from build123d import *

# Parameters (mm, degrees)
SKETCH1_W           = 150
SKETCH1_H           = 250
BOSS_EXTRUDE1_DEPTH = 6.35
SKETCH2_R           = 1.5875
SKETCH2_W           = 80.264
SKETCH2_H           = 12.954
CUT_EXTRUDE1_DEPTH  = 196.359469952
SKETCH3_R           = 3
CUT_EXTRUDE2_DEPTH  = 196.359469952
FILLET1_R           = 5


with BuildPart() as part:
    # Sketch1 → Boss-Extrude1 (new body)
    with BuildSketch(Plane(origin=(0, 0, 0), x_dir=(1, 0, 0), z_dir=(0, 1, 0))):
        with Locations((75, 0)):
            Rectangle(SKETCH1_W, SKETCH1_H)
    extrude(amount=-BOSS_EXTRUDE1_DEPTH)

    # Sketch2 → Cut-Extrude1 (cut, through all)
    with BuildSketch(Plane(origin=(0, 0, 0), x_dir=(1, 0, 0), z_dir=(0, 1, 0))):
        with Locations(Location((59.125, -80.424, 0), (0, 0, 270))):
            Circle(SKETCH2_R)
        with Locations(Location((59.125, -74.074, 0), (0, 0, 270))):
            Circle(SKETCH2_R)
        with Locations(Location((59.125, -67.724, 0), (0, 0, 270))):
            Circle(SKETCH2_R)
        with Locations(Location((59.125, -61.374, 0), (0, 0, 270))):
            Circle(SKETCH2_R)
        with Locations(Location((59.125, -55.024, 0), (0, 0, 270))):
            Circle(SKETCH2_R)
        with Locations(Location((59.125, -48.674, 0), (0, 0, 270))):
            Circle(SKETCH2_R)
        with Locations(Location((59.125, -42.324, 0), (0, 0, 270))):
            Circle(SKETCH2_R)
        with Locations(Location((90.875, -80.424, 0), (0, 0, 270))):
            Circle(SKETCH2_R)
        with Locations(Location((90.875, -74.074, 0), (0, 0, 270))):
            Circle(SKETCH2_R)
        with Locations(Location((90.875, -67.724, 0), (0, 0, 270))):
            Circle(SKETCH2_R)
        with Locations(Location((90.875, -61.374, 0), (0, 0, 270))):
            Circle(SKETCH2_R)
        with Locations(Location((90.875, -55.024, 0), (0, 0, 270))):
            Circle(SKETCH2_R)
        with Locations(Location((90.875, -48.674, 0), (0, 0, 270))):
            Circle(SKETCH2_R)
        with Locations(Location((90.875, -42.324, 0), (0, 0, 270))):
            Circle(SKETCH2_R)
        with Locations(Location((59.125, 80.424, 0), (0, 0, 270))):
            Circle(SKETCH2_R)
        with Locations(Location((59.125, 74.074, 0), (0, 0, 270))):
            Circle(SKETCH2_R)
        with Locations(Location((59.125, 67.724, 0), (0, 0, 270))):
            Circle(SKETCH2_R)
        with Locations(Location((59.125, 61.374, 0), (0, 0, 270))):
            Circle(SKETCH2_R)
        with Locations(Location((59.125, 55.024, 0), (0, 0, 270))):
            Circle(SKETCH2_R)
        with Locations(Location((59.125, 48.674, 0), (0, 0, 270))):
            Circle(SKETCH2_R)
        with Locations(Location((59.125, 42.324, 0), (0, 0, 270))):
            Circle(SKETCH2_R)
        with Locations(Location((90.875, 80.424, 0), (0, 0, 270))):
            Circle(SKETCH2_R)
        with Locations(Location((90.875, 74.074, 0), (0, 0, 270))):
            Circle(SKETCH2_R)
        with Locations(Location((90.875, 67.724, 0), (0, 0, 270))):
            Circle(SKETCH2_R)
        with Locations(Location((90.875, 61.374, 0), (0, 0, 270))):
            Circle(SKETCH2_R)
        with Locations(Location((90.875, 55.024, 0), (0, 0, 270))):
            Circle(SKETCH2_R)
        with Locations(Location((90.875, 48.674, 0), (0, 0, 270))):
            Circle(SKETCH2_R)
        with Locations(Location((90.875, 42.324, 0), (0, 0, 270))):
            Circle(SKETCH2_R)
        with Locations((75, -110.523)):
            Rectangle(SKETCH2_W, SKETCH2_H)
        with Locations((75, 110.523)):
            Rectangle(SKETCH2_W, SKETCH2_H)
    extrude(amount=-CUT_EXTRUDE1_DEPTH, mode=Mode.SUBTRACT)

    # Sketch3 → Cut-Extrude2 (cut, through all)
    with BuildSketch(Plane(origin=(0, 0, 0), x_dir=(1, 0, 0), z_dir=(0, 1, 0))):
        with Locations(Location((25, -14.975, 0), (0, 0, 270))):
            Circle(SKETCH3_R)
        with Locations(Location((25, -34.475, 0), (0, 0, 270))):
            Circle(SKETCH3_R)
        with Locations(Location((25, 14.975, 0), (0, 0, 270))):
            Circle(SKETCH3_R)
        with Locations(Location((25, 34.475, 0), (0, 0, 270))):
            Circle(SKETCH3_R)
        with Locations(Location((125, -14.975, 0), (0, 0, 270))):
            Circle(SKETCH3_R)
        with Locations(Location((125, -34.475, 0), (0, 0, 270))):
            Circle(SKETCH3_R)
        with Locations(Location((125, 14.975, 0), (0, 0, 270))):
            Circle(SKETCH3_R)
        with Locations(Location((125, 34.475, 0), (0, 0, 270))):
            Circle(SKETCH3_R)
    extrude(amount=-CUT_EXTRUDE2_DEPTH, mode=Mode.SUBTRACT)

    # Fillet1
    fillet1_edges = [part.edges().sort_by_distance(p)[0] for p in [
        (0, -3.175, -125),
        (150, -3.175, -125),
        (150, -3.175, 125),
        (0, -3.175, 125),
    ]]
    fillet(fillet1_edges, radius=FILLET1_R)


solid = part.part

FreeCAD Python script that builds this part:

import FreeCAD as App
import Part
import Sketcher
from FreeCAD import Vector
Q = App.Units.Quantity


def edges_at(feature, points):
    """Names of the edges that pass closest to the given points."""
    edges = feature.Shape.Edges
    near = lambda p: min(range(len(edges)), key=lambda i: edges[i].distToShape(Part.Vertex(*p))[0])
    return sorted({f"Edge{near(p) + 1}" for p in points})


def add_polygon(sketch, points):
    """Adds a closed chain of lines whose ends are joined by coincident constraints."""
    first, n = sketch.GeometryCount, len(points)
    for a, b in zip(points, points[1:] + points[:1]):
        sketch.addGeometry(Part.LineSegment(App.Vector(*a, 0), App.Vector(*b, 0)), False)
    for i in range(n):
        sketch.addConstraint(Sketcher.Constraint("Coincident", first + i, 2, first + (i + 1) % n, 1))

doc = App.newDocument("Part")
body = doc.addObject("PartDesign::Body", "Body")

# Sketch on XZ plane
sketch1 = body.newObject("Sketcher::SketchObject", "Sketch")
sketch1.AttachmentSupport = (doc.getObject("XZ_Plane"), [""])
sketch1.MapMode = "FlatFace"
add_polygon(sketch1, [(0, -125), (0, 125), (150, 125), (150, -125)])  # lines 0-3
sketch1.addConstraint([
    Sketcher.Constraint("Vertical", 0),
    Sketcher.Constraint("Horizontal", 1),
    Sketcher.Constraint("Vertical", 2),
    Sketcher.Constraint("Horizontal", 3),
    Sketcher.Constraint("Symmetric", 0, 2, 3, 2, -1, 1),
    Sketcher.Constraint("DistanceX", 1, 1, 1, 2, Q("150 mm")),
    Sketcher.Constraint("DistanceY", 0, 1, 0, 2, Q("250 mm")),
])
pad1 = body.newObject("PartDesign::Pad", "Pad")
pad1.Profile = sketch1
pad1.Length = 6.35

# Sketch on XZ plane
sketch2 = body.newObject("Sketcher::SketchObject", "Sketch001")
sketch2.AttachmentSupport = (doc.getObject("XZ_Plane"), [""])
sketch2.MapMode = "FlatFace"
sketch2.addGeometry(Part.Circle(Vector(59.1, 80.4, 0), Vector(0, 0, 1), 1.6), False)  # 0
sketch2.addGeometry(Part.Circle(Vector(59.1, 74.1, 0), Vector(0, 0, 1), 1.6), False)  # 1
sketch2.addGeometry(Part.Circle(Vector(59.1, 67.7, 0), Vector(0, 0, 1), 1.6), False)  # 2
sketch2.addGeometry(Part.Circle(Vector(59.1, 61.4, 0), Vector(0, 0, 1), 1.6), False)  # 3
sketch2.addGeometry(Part.Circle(Vector(59.1, 55, 0), Vector(0, 0, 1), 1.6), False)  # 4
sketch2.addGeometry(Part.Circle(Vector(59.1, 48.7, 0), Vector(0, 0, 1), 1.6), False)  # 5
sketch2.addGeometry(Part.Circle(Vector(59.1, 42.3, 0), Vector(0, 0, 1), 1.6), False)  # 6
sketch2.addGeometry(Part.Circle(Vector(90.9, 80.4, 0), Vector(0, 0, 1), 1.6), False)  # 7
sketch2.addGeometry(Part.Circle(Vector(90.9, 74.1, 0), Vector(0, 0, 1), 1.6), False)  # 8
sketch2.addGeometry(Part.Circle(Vector(90.9, 67.7, 0), Vector(0, 0, 1), 1.6), False)  # 9
sketch2.addGeometry(Part.Circle(Vector(90.9, 61.4, 0), Vector(0, 0, 1), 1.6), False)  # 10
sketch2.addGeometry(Part.Circle(Vector(90.9, 55, 0), Vector(0, 0, 1), 1.6), False)  # 11
sketch2.addGeometry(Part.Circle(Vector(90.9, 48.7, 0), Vector(0, 0, 1), 1.6), False)  # 12
sketch2.addGeometry(Part.Circle(Vector(90.9, 42.3, 0), Vector(0, 0, 1), 1.6), False)  # 13
sketch2.addGeometry(Part.Circle(Vector(59.1, -80.4, 0), Vector(0, 0, 1), 1.6), False)  # 14
sketch2.addGeometry(Part.Circle(Vector(59.1, -74.1, 0), Vector(0, 0, 1), 1.6), False)  # 15
sketch2.addGeometry(Part.Circle(Vector(59.1, -67.7, 0), Vector(0, 0, 1), 1.6), False)  # 16
sketch2.addGeometry(Part.Circle(Vector(59.1, -61.4, 0), Vector(0, 0, 1), 1.6), False)  # 17
sketch2.addGeometry(Part.Circle(Vector(59.1, -55, 0), Vector(0, 0, 1), 1.6), False)  # 18
sketch2.addGeometry(Part.Circle(Vector(59.1, -48.7, 0), Vector(0, 0, 1), 1.6), False)  # 19
sketch2.addGeometry(Part.Circle(Vector(59.1, -42.3, 0), Vector(0, 0, 1), 1.6), False)  # 20
sketch2.addGeometry(Part.Circle(Vector(90.9, -80.4, 0), Vector(0, 0, 1), 1.6), False)  # 21
sketch2.addGeometry(Part.Circle(Vector(90.9, -74.1, 0), Vector(0, 0, 1), 1.6), False)  # 22
sketch2.addGeometry(Part.Circle(Vector(90.9, -67.7, 0), Vector(0, 0, 1), 1.6), False)  # 23
sketch2.addGeometry(Part.Circle(Vector(90.9, -61.4, 0), Vector(0, 0, 1), 1.6), False)  # 24
sketch2.addGeometry(Part.Circle(Vector(90.9, -55, 0), Vector(0, 0, 1), 1.6), False)  # 25
sketch2.addGeometry(Part.Circle(Vector(90.9, -48.7, 0), Vector(0, 0, 1), 1.6), False)  # 26
sketch2.addGeometry(Part.Circle(Vector(90.9, -42.3, 0), Vector(0, 0, 1), 1.6), False)  # 27
add_polygon(sketch2, [(34.9, 104), (34.9, 117), (115.1, 117), (115.1, 104)])  # lines 28-31
add_polygon(sketch2, [(34.9, -117), (34.9, -104), (115.1, -104), (115.1, -117)])  # lines 32-35
sketch2.addConstraint([
    Sketcher.Constraint("Vertical", 28),
    Sketcher.Constraint("Horizontal", 29),
    Sketcher.Constraint("Vertical", 30),
    Sketcher.Constraint("Horizontal", 31),
    Sketcher.Constraint("Vertical", 32),
    Sketcher.Constraint("Horizontal", 33),
    Sketcher.Constraint("Vertical", 34),
    Sketcher.Constraint("Horizontal", 35),
    Sketcher.Constraint("Equal", 0, 1),
    Sketcher.Constraint("Equal", 1, 2),
    Sketcher.Constraint("Equal", 2, 3),
    Sketcher.Constraint("Equal", 3, 4),
    Sketcher.Constraint("Equal", 4, 5),
    Sketcher.Constraint("Equal", 5, 6),
    Sketcher.Constraint("Equal", 6, 7),
    Sketcher.Constraint("Equal", 7, 8),
    Sketcher.Constraint("Equal", 8, 9),
    Sketcher.Constraint("Equal", 9, 10),
    Sketcher.Constraint("Equal", 10, 11),
    Sketcher.Constraint("Equal", 11, 12),
    Sketcher.Constraint("Equal", 12, 13),
    Sketcher.Constraint("Equal", 13, 14),
    Sketcher.Constraint("Equal", 14, 15),
    Sketcher.Constraint("Equal", 15, 16),
    Sketcher.Constraint("Equal", 16, 17),
    Sketcher.Constraint("Equal", 17, 18),
    Sketcher.Constraint("Equal", 18, 19),
    Sketcher.Constraint("Equal", 19, 20),
    Sketcher.Constraint("Equal", 20, 21),
    Sketcher.Constraint("Equal", 21, 22),
    Sketcher.Constraint("Equal", 22, 23),
    Sketcher.Constraint("Equal", 23, 24),
    Sketcher.Constraint("Equal", 24, 25),
    Sketcher.Constraint("Equal", 25, 26),
    Sketcher.Constraint("Equal", 26, 27),
    Sketcher.Constraint("Symmetric", 0, 3, 14, 3, -1),
    Sketcher.Constraint("Symmetric", 1, 3, 15, 3, -1),
    Sketcher.Constraint("Symmetric", 2, 3, 16, 3, -1),
    Sketcher.Constraint("Symmetric", 3, 3, 17, 3, -1),
    Sketcher.Constraint("Symmetric", 4, 3, 18, 3, -1),
    Sketcher.Constraint("Symmetric", 5, 3, 19, 3, -1),
    Sketcher.Constraint("Symmetric", 6, 3, 20, 3, -1),
    Sketcher.Constraint("Symmetric", 7, 3, 21, 3, -1),
    Sketcher.Constraint("Symmetric", 8, 3, 22, 3, -1),
    Sketcher.Constraint("Symmetric", 9, 3, 23, 3, -1),
    Sketcher.Constraint("Symmetric", 10, 3, 24, 3, -1),
    Sketcher.Constraint("Symmetric", 11, 3, 25, 3, -1),
    Sketcher.Constraint("Symmetric", 12, 3, 26, 3, -1),
    Sketcher.Constraint("Symmetric", 13, 3, 27, 3, -1),
    Sketcher.Constraint("Symmetric", 31, 2, 32, 2, -1),
    Sketcher.Constraint("Symmetric", 29, 2, 34, 2, -1),
    Sketcher.Constraint("Horizontal", 0, 3, 7, 3),
    Sketcher.Constraint("Horizontal", 1, 3, 8, 3),
    Sketcher.Constraint("Horizontal", 2, 3, 9, 3),
    Sketcher.Constraint("Horizontal", 3, 3, 10, 3),
    Sketcher.Constraint("Horizontal", 4, 3, 11, 3),
    Sketcher.Constraint("Horizontal", 5, 3, 12, 3),
    Sketcher.Constraint("Horizontal", 6, 3, 13, 3),
    Sketcher.Constraint("Vertical", 0, 3, 1, 3),
    Sketcher.Constraint("Vertical", 1, 3, 2, 3),
    Sketcher.Constraint("Vertical", 2, 3, 3, 3),
    Sketcher.Constraint("Vertical", 3, 3, 4, 3),
    Sketcher.Constraint("Vertical", 4, 3, 5, 3),
    Sketcher.Constraint("Vertical", 5, 3, 6, 3),
    Sketcher.Constraint("Vertical", 7, 3, 8, 3),
    Sketcher.Constraint("Vertical", 8, 3, 9, 3),
    Sketcher.Constraint("Vertical", 9, 3, 10, 3),
    Sketcher.Constraint("Vertical", 10, 3, 11, 3),
    Sketcher.Constraint("Vertical", 11, 3, 12, 3),
    Sketcher.Constraint("Vertical", 12, 3, 13, 3),
    Sketcher.Constraint("Diameter", 0, Q("3.175 mm")),
    Sketcher.Constraint("DistanceY", -1, 1, 28, 2, Q("117 mm")),
    Sketcher.Constraint("DistanceY", 2, 3, 0, 3, Q("12.7 mm")),
    Sketcher.Constraint("DistanceY", 3, 3, 1, 3, Q("12.7 mm")),
    Sketcher.Constraint("DistanceY", 4, 3, 2, 3, Q("12.7 mm")),
    Sketcher.Constraint("DistanceY", 5, 3, 3, 3, Q("12.7 mm")),
    Sketcher.Constraint("DistanceY", 6, 3, 4, 3, Q("12.7 mm")),
    Sketcher.Constraint("DistanceX", 29, 1, 29, 2, Q("80.264 mm")),
    Sketcher.Constraint("DistanceY", 28, 1, 28, 2, Q("12.954 mm")),
    Sketcher.Constraint("DistanceY", 1, 3, 0, 3, Q("6.35 mm")),
    Sketcher.Constraint("DistanceX", 0, 3, 7, 3, Q("31.75 mm")),
    Sketcher.Constraint("DistanceX", -1, 1, 0, 3, Q("59.125 mm")),
    Sketcher.Constraint("DistanceY", -1, 1, 0, 3, Q("80.424 mm")),
    Sketcher.Constraint("DistanceX", -1, 1, 28, 2, Q("34.868 mm")),
])
pocket1 = body.newObject("PartDesign::Pocket", "Pocket")
pocket1.Profile = sketch2
pocket1.Type = "ThroughAll"
pocket1.Reversed = True

# Sketch on XZ plane
sketch3 = body.newObject("Sketcher::SketchObject", "Sketch002")
sketch3.AttachmentSupport = (doc.getObject("XZ_Plane"), [""])
sketch3.MapMode = "FlatFace"
sketch3.addGeometry([
    Part.Circle(Vector(25, 15, 0), Vector(0, 0, 1), 3),  # 0
    Part.Circle(Vector(25, 34.5, 0), Vector(0, 0, 1), 3),  # 1
    Part.Circle(Vector(25, -15, 0), Vector(0, 0, 1), 3),  # 2
    Part.Circle(Vector(25, -34.5, 0), Vector(0, 0, 1), 3),  # 3
    Part.Circle(Vector(125, 15, 0), Vector(0, 0, 1), 3),  # 4
    Part.Circle(Vector(125, 34.5, 0), Vector(0, 0, 1), 3),  # 5
    Part.Circle(Vector(125, -15, 0), Vector(0, 0, 1), 3),  # 6
    Part.Circle(Vector(125, -34.5, 0), Vector(0, 0, 1), 3),  # 7
], False)
sketch3.addConstraint([
    Sketcher.Constraint("Equal", 0, 1),
    Sketcher.Constraint("Equal", 1, 2),
    Sketcher.Constraint("Equal", 2, 3),
    Sketcher.Constraint("Equal", 3, 4),
    Sketcher.Constraint("Equal", 4, 5),
    Sketcher.Constraint("Equal", 5, 6),
    Sketcher.Constraint("Equal", 6, 7),
    Sketcher.Constraint("Symmetric", 0, 3, 2, 3, -1),
    Sketcher.Constraint("Symmetric", 1, 3, 3, 3, -1),
    Sketcher.Constraint("Symmetric", 4, 3, 6, 3, -1),
    Sketcher.Constraint("Symmetric", 5, 3, 7, 3, -1),
    Sketcher.Constraint("Horizontal", 0, 3, 4, 3),
    Sketcher.Constraint("Horizontal", 1, 3, 5, 3),
    Sketcher.Constraint("Vertical", 0, 3, 1, 3),
    Sketcher.Constraint("Vertical", 4, 3, 5, 3),
    Sketcher.Constraint("Diameter", 0, Q("6 mm")),
    Sketcher.Constraint("DistanceX", -1, 1, 0, 3, Q("25 mm")),
    Sketcher.Constraint("DistanceX", -1, 1, 4, 3, Q("125 mm")),
    Sketcher.Constraint("DistanceY", 0, 3, 1, 3, Q("19.5 mm")),
    Sketcher.Constraint("DistanceY", 2, 3, 0, 3, Q("29.95 mm")),
])
pocket2 = body.newObject("PartDesign::Pocket", "Pocket001")
pocket2.Profile = sketch3
pocket2.Type = "ThroughAll"
pocket2.Reversed = True
doc.recompute()

fillet = body.newObject("PartDesign::Fillet", "Fillet")
fillet.Base = (pocket2, edges_at(pocket2, [
    (0, -3.175, -125),
    (150, -3.175, -125),
    (150, -3.175, 125),
    (0, -3.175, 125),
]))
fillet.Radius = 5

doc.recompute()
